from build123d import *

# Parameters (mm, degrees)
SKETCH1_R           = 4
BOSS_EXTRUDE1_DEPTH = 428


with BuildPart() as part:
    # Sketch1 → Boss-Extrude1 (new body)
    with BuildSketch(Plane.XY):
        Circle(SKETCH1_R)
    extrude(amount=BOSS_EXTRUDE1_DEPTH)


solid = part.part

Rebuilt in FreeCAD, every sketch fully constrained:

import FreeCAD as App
import Part
import Sketcher

doc = App.newDocument("Part")
body = doc.addObject("PartDesign::Body", "Body")

# Sketch on XY plane
sketch1 = doc.addObject("Sketcher::SketchObject", "Sketch")
body.addObject(sketch1)
sketch1.AttachmentSupport = (doc.XY_Plane, [""])
sketch1.MapMode = "FlatFace"
sketch1.addGeometry(Part.Circle(App.Vector(0, 0, 0), App.Vector(0, 0, 1), 4), False)
sketch1.addConstraint(Sketcher.Constraint("Coincident", 0, 3, -1, 1))
sketch1.addConstraint(Sketcher.Constraint("Diameter", 0, 8.0))
pad1 = doc.addObject("PartDesign::Pad", "Pad")
body.addObject(pad1)
pad1.Profile = sketch1
pad1.Length = 428

doc.recompute()
